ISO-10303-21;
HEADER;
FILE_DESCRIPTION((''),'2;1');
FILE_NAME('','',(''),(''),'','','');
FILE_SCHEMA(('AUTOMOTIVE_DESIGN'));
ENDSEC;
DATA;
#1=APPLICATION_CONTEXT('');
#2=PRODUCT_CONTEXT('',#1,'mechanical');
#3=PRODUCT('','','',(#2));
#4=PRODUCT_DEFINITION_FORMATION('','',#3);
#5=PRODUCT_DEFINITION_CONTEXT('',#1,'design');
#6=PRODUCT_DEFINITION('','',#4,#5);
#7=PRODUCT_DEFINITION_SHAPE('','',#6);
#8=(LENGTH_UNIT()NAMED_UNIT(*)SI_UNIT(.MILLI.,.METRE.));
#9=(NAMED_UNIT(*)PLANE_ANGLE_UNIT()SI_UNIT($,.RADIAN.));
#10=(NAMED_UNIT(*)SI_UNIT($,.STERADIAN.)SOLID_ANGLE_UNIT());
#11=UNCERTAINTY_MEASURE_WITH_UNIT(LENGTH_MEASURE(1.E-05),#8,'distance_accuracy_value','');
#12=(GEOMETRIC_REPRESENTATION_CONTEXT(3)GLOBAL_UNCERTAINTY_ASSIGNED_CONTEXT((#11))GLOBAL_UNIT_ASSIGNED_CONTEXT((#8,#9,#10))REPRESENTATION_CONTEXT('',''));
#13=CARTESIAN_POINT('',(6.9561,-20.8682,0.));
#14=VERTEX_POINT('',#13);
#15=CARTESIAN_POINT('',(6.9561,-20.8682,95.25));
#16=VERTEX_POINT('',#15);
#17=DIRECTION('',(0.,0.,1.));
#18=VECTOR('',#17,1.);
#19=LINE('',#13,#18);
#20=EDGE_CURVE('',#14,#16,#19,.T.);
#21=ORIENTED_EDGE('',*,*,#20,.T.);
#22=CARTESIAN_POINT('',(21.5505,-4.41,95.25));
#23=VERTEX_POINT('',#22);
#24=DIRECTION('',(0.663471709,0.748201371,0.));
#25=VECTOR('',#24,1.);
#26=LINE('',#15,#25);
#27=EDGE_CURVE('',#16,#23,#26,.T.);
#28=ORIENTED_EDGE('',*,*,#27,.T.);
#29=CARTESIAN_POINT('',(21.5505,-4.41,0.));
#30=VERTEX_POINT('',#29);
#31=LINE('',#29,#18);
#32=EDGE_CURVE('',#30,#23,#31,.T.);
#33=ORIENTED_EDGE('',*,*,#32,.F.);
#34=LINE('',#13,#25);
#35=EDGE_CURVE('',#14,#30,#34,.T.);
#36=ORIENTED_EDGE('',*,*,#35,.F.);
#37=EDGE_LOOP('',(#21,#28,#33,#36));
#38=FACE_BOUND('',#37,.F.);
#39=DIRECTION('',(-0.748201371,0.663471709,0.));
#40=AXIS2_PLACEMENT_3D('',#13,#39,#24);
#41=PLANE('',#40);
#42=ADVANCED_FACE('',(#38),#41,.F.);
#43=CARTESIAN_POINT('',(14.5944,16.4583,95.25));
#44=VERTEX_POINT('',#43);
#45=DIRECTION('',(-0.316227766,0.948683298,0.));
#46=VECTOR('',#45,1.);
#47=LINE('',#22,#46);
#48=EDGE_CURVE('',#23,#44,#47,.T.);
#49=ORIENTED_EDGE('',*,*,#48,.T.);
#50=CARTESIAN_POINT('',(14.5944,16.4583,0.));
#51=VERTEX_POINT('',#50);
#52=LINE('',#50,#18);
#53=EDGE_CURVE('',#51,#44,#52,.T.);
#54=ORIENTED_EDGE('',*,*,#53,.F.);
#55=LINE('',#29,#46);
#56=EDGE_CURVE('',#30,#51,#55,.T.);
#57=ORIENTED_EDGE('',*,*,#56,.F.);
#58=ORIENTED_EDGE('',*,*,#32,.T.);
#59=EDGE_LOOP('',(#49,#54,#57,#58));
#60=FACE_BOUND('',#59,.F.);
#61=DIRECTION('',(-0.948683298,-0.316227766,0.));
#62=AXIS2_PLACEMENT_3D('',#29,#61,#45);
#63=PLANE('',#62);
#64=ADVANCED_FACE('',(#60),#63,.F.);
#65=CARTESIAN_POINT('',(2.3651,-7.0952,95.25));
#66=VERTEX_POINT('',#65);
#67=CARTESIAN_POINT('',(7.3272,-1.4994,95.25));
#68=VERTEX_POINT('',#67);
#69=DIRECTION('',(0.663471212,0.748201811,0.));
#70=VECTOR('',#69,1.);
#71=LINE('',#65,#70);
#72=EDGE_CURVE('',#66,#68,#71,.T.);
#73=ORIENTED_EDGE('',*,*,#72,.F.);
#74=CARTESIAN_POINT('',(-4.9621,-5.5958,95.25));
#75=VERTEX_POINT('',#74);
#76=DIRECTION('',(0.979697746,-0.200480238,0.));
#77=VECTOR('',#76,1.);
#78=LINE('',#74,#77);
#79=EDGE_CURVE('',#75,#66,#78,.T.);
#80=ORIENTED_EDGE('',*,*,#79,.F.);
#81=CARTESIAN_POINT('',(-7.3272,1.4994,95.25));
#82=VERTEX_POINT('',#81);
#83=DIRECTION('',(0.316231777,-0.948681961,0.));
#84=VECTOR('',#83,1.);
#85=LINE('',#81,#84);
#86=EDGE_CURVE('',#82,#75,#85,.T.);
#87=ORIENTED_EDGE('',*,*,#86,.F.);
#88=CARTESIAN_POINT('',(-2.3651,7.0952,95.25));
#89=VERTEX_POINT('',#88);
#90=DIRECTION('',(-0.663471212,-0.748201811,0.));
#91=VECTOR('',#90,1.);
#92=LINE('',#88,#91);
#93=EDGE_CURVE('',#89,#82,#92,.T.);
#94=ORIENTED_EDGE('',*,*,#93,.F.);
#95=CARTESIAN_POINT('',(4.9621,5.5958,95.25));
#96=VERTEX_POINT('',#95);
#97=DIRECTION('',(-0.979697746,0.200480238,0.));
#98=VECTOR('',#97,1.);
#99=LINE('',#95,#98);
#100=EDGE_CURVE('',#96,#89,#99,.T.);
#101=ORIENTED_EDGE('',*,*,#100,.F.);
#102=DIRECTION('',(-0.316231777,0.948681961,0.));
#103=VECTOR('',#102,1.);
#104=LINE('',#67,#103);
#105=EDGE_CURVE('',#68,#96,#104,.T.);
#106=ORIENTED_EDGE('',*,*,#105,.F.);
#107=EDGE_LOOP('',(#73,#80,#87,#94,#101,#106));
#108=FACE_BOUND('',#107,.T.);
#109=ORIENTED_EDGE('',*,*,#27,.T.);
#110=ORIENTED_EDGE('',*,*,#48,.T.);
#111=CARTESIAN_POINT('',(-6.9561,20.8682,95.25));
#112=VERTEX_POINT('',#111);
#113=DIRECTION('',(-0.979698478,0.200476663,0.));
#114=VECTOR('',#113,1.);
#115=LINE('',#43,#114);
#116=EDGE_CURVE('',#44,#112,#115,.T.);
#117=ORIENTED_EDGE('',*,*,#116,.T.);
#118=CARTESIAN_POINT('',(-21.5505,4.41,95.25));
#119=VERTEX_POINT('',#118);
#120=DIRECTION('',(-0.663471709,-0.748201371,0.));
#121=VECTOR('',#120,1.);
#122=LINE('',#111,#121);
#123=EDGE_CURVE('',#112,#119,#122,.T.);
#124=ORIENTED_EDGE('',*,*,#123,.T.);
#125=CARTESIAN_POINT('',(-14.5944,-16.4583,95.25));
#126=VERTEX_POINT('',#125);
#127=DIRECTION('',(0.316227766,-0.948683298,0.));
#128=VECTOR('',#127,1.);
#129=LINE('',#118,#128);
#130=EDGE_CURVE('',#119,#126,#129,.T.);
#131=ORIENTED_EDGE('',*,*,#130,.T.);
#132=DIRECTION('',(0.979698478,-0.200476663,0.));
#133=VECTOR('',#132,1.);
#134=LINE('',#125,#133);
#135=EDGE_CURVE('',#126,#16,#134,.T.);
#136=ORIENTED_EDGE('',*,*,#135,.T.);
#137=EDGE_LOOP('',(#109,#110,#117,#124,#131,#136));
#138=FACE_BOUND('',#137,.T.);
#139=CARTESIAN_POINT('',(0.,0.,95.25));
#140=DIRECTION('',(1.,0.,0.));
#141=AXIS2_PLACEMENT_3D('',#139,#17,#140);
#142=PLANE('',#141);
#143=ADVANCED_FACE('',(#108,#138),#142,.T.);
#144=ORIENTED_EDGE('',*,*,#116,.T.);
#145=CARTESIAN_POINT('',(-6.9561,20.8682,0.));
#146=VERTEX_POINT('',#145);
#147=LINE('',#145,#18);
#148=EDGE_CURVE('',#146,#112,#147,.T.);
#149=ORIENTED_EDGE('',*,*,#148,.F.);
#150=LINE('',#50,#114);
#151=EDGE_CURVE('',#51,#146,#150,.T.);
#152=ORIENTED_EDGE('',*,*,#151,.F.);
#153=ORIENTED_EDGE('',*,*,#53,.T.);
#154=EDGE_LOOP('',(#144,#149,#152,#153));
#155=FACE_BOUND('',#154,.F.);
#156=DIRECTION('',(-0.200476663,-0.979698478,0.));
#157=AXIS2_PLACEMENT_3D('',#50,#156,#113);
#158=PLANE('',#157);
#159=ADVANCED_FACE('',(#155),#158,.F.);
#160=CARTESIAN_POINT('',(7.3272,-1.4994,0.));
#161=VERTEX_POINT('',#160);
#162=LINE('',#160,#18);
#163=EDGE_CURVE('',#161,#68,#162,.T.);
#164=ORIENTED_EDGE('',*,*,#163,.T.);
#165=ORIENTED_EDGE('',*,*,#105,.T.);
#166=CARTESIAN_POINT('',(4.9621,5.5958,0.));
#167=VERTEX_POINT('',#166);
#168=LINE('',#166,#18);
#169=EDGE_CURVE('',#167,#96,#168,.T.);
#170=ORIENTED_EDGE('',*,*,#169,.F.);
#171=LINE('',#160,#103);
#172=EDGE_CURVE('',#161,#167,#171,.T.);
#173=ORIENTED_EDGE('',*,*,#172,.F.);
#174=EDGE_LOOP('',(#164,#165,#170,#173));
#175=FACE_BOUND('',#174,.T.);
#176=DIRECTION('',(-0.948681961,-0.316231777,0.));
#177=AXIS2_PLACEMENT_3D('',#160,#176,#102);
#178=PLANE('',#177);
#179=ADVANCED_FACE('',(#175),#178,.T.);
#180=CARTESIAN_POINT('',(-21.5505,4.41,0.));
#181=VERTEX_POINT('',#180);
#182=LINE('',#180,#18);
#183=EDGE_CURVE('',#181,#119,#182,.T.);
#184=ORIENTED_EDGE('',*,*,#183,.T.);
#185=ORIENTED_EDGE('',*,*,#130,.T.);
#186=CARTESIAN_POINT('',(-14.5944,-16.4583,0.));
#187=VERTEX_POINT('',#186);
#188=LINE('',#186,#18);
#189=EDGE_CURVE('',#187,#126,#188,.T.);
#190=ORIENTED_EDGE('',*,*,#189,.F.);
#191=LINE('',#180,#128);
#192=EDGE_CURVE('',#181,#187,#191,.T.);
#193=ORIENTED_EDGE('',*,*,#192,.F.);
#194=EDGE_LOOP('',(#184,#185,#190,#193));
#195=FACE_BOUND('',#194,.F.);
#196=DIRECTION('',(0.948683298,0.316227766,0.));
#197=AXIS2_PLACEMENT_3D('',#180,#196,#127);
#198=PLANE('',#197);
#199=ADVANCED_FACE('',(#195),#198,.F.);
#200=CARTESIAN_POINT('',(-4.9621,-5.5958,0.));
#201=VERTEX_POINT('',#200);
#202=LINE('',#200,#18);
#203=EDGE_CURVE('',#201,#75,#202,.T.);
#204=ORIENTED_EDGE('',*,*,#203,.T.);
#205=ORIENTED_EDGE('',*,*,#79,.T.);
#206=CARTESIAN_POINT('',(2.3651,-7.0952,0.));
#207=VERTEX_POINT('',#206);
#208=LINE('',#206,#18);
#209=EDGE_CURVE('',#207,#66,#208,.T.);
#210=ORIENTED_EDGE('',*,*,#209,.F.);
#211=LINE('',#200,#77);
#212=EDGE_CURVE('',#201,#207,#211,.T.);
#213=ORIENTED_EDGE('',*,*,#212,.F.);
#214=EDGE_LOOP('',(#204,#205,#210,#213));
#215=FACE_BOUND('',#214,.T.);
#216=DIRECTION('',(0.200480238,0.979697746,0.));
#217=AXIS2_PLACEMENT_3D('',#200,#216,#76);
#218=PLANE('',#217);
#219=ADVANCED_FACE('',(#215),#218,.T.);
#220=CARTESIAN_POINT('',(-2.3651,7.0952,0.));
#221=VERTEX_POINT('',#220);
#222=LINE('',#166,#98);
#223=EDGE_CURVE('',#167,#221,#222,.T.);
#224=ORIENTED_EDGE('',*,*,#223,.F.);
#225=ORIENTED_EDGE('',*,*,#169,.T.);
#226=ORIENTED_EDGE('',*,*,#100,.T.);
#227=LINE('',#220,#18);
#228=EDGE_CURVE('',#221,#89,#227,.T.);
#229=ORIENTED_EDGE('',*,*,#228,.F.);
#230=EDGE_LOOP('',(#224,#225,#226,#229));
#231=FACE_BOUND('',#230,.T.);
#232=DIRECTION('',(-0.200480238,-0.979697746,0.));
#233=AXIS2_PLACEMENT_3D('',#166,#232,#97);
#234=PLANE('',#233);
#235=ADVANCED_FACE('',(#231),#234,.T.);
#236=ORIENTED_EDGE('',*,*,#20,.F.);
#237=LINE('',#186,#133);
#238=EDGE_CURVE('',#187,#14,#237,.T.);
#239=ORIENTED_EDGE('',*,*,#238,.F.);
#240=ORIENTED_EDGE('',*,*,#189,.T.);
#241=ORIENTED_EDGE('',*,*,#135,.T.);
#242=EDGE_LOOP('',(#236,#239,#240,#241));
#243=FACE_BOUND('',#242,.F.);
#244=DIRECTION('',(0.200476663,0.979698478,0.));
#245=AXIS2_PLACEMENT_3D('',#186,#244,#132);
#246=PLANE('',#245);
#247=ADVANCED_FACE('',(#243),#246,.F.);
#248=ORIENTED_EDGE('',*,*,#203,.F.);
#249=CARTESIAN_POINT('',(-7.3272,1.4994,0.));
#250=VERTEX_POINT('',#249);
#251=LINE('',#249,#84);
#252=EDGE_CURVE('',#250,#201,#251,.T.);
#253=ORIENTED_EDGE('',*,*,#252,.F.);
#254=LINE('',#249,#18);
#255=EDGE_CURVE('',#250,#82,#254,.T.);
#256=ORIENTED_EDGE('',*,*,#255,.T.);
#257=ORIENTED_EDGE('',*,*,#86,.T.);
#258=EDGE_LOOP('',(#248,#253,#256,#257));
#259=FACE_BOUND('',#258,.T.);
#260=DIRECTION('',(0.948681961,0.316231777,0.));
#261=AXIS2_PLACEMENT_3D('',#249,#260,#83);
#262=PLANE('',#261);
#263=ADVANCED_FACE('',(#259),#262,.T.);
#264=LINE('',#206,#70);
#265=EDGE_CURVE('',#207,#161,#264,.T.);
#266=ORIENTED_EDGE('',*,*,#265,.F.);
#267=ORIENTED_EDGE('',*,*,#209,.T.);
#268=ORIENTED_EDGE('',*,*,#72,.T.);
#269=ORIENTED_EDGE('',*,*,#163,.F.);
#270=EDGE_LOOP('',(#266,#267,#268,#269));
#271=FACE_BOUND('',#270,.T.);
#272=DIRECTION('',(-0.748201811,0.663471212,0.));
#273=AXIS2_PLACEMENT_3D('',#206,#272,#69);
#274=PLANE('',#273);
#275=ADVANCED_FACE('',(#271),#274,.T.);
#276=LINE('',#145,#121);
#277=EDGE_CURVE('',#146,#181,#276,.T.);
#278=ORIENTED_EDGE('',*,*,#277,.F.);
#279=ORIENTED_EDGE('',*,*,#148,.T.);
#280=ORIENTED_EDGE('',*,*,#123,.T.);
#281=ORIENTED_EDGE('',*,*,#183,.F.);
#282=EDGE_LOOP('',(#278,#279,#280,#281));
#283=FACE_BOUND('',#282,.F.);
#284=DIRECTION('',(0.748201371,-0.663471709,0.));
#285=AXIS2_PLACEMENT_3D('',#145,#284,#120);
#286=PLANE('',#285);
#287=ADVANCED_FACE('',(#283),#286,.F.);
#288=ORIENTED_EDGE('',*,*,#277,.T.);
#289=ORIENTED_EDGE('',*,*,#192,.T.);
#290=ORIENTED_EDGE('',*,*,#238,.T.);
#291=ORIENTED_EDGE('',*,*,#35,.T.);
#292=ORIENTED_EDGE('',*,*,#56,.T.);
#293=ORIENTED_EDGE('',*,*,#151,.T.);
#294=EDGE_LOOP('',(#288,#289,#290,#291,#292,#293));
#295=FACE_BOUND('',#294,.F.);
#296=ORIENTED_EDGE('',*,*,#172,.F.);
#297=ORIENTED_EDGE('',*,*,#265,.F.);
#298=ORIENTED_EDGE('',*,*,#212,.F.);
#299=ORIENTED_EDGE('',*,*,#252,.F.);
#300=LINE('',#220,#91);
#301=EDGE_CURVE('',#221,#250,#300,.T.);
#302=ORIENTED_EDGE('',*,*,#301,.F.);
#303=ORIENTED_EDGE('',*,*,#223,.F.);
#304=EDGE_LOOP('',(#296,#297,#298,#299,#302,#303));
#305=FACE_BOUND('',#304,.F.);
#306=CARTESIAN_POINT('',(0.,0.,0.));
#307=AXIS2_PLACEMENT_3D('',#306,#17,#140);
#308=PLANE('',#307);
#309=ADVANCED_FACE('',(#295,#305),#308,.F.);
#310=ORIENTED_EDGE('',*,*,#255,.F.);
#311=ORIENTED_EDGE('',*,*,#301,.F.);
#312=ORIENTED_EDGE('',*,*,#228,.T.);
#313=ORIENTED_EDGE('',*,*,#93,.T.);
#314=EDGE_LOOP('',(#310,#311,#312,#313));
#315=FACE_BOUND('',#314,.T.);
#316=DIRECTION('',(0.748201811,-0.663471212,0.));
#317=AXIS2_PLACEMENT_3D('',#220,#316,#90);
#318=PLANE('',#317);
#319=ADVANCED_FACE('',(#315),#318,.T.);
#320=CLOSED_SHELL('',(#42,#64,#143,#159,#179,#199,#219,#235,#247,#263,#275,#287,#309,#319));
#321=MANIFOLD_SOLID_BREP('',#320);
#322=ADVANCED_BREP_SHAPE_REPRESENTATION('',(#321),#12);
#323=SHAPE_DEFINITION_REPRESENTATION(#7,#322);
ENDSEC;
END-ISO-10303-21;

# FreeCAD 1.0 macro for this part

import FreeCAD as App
import Part
import Sketcher
Q = App.Units.Quantity


def add_polygon(sketch, points):
    """Adds a closed chain of lines whose ends are joined by coincident constraints."""
    first, n = sketch.GeometryCount, len(points)
    for a, b in zip(points, points[1:] + points[:1]):
        sketch.addGeometry(Part.LineSegment(App.Vector(*a, 0), App.Vector(*b, 0)), False)
    for i in range(n):
        sketch.addConstraint(Sketcher.Constraint("Coincident", first + i, 2, first + (i + 1) % n, 1))

doc = App.newDocument("Part")
body = doc.addObject("PartDesign::Body", "Body")

# Sketch on XY plane
sketch1 = body.newObject("Sketcher::SketchObject", "Sketch")
sketch1.AttachmentSupport = (doc.getObject("XY_Plane"), [""])
sketch1.MapMode = "FlatFace"
add_polygon(sketch1, [(14.5944, 16.4583), (-6.9561, 20.8682), (-21.5505, 4.41), (-14.5944, -16.4583), (6.9561, -20.8682), (21.5505, -4.41)])  # lines 0-5
add_polygon(sketch1, [(-2.3651, 7.0952), (4.9621, 5.5958), (7.3272, -1.4994), (2.3651, -7.0952), (-4.9621, -5.5958), (-7.3272, 1.4994)])  # lines 6-11
sketch1.addConstraint(Sketcher.Constraint("Symmetric", 0, 2, 3, 2, -1, 1))
sketch1.addConstraint(Sketcher.Constraint("Symmetric", 1, 2, 4, 2, -1, 1))
sketch1.addConstraint(Sketcher.Constraint("Symmetric", 2, 2, 5, 2, -1, 1))
sketch1.addConstraint(Sketcher.Constraint("Symmetric", 6, 2, 9, 2, -1, 1))
sketch1.addConstraint(Sketcher.Constraint("Symmetric", 7, 2, 10, 2, -1, 1))
sketch1.addConstraint(Sketcher.Constraint("Symmetric", 8, 2, 11, 2, -1, 1))
sketch1.addConstraint(Sketcher.Constraint("Parallel", 3, 6))
sketch1.addConstraint(Sketcher.Constraint("Parallel", 5, 7))
sketch1.addConstraint(Sketcher.Constraint("Parallel", 4, 8))
sketch1.addConstraint(Sketcher.Constraint("Equal", 0, 1))
sketch1.addConstraint(Sketcher.Constraint("Equal", 1, 2))
sketch1.addConstraint(Sketcher.Constraint("Equal", 6, 7))
sketch1.addConstraint(Sketcher.Constraint("Equal", 7, 8))
sketch1.addConstraint(Sketcher.Constraint("DistanceY", 7, 2, 5, 2, Q("0.707 in")))
sketch1.addConstraint(Sketcher.Constraint("DistanceY", -1, 1, 6, 2, Q("0.2203 in")))
sketch1.addConstraint(Sketcher.Constraint("DistanceX", 1, 2, 3, 2, Q("1.1223 in")))
sketch1.addConstraint(Sketcher.Constraint("DistanceY", 3, 2, 1, 2, Q("0.9952 in")))
sketch1.addConstraint(Sketcher.Constraint("DistanceX", 1, 2, 4, 2, Q("1.6969 in")))
pad1 = body.newObject("PartDesign::Pad", "Pad")
pad1.Profile = sketch1
pad1.Length = Q("3.75 in")

doc.recompute()
